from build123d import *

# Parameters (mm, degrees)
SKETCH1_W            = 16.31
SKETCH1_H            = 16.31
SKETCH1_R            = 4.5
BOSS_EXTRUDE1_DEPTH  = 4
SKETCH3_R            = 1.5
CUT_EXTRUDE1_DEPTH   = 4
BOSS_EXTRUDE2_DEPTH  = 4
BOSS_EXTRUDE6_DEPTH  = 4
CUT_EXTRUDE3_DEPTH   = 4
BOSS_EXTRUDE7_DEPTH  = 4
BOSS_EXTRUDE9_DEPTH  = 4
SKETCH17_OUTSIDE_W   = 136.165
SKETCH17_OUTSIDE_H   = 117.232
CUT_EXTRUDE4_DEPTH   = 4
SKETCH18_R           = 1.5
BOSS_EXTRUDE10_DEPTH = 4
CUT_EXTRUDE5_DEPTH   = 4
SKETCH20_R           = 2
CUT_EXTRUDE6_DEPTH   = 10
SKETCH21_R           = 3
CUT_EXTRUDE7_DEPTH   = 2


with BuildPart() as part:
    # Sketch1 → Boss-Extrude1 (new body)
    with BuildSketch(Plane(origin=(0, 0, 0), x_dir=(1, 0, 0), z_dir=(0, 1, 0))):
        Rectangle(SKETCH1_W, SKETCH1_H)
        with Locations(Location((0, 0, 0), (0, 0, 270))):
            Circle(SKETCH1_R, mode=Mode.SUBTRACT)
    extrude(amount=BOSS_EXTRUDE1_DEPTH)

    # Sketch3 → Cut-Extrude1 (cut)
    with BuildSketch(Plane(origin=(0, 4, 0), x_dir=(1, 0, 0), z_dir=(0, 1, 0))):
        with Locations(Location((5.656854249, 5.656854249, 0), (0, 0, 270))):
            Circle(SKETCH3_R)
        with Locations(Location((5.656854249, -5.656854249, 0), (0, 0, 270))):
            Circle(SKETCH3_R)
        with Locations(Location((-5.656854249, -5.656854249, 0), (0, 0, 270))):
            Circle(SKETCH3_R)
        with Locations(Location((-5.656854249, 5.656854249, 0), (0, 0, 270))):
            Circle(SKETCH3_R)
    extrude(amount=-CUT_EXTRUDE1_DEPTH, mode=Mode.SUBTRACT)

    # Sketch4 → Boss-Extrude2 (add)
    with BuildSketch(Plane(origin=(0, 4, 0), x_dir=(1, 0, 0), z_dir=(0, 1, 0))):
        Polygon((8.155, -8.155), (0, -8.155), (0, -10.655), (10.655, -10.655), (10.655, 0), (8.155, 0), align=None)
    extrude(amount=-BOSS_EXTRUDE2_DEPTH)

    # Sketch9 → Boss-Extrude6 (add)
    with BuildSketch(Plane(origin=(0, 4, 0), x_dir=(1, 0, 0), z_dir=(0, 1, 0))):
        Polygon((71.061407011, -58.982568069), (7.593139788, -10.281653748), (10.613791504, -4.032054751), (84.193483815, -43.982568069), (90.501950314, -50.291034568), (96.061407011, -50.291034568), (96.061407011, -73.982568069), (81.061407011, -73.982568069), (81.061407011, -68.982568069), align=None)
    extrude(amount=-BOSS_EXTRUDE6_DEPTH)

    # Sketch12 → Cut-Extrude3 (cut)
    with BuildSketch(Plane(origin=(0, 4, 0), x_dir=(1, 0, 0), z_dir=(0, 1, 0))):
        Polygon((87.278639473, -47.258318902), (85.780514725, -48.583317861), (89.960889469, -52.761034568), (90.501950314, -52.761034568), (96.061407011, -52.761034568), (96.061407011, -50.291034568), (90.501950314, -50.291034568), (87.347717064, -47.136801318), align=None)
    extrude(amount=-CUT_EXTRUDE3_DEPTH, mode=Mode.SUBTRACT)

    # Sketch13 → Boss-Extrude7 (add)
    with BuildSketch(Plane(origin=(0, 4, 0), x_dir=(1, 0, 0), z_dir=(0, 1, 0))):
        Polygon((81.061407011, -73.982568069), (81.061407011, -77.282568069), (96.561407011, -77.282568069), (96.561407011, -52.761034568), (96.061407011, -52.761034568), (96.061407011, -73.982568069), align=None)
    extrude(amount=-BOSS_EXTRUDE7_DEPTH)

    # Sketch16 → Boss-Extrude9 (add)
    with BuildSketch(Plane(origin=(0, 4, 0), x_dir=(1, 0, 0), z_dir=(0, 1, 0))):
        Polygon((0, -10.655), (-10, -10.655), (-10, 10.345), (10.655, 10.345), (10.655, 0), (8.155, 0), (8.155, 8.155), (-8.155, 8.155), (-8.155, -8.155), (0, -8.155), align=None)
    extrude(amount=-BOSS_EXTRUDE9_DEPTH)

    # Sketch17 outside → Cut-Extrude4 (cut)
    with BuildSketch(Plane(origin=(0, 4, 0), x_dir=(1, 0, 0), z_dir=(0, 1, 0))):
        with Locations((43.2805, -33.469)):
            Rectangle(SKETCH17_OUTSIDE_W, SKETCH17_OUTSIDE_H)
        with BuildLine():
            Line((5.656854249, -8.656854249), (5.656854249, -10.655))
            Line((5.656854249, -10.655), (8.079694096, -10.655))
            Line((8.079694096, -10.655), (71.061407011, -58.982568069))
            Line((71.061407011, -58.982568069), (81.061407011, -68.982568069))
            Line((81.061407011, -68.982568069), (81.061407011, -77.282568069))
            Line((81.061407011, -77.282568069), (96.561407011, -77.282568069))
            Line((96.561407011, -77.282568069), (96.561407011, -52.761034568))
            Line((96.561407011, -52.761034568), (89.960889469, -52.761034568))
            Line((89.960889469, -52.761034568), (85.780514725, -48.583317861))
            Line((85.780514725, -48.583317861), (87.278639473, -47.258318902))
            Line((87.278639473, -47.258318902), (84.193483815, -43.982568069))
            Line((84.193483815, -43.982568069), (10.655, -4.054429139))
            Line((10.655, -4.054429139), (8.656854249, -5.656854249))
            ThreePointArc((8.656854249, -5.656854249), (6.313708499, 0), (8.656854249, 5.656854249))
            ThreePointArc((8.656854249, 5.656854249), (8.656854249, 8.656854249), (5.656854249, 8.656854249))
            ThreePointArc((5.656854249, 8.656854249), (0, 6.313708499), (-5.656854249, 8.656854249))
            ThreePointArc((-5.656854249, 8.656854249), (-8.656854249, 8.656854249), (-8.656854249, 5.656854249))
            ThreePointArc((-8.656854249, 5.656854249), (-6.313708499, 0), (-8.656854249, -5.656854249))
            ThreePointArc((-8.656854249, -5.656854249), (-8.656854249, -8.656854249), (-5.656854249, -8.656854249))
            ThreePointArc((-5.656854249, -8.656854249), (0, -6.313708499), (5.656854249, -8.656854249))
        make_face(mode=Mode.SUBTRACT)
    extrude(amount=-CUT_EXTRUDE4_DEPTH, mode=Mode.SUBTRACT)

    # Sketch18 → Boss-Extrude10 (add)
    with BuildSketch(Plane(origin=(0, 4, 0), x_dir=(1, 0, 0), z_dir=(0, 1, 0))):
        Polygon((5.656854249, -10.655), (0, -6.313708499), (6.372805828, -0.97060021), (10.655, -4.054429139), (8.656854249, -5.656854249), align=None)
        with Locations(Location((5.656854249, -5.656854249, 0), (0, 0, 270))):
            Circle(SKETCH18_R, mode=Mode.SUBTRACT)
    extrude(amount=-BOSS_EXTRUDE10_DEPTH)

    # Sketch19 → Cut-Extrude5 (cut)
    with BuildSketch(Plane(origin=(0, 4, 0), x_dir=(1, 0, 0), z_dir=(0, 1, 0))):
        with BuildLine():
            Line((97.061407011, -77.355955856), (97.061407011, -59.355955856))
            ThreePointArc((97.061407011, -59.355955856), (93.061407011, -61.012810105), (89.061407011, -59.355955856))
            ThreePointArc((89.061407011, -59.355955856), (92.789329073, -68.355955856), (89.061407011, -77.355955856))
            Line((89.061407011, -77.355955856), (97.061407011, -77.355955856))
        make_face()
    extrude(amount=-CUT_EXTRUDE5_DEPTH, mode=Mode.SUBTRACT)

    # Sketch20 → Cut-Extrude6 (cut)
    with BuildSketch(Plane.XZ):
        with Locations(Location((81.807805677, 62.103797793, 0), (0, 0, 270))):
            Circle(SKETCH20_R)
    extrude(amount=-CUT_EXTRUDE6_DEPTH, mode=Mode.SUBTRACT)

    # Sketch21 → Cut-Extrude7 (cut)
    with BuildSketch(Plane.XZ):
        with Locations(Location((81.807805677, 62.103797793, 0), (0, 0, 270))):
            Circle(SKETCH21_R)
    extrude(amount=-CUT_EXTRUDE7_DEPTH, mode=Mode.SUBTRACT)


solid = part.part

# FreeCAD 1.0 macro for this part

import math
import FreeCAD as App
import Part
import Sketcher

V = App.Vector
Q = App.Units.Quantity

doc = App.newDocument("Part")
body = doc.addObject("PartDesign::Body", "Body")

# Sketch on XZ plane
sketch1 = doc.addObject("Sketcher::SketchObject", "Sketch")
body.addObject(sketch1)
sketch1.AttachmentSupport = (doc.XZ_Plane, [""])
sketch1.MapMode = "FlatFace"
sketch1.addGeometry([
    Part.LineSegment(V(-8.2, -8.2, 0), V(-8.2, 8.2, 0)),  # 0
    Part.LineSegment(V(-8.2, 8.2, 0), V(8.2, 8.2, 0)),  # 1
    Part.LineSegment(V(8.2, 8.2, 0), V(8.2, -8.2, 0)),  # 2
    Part.LineSegment(V(8.2, -8.2, 0), V(-8.2, -8.2, 0)),  # 3
    Part.Circle(V(0, 0, 0), V(0, 0, 1), 4.5),  # 4
], False)
sketch1.addConstraint([
    Sketcher.Constraint("Coincident", 0, 2, 1, 1),
    Sketcher.Constraint("Coincident", 1, 2, 2, 1),
    Sketcher.Constraint("Coincident", 2, 2, 3, 1),
    Sketcher.Constraint("Coincident", 3, 2, 0, 1),
    Sketcher.Constraint("Vertical", 0),
    Sketcher.Constraint("Horizontal", 1),
    Sketcher.Constraint("Vertical", 2),
    Sketcher.Constraint("Horizontal", 3),
    Sketcher.Constraint("Coincident", 4, 3, -1, 1),
    Sketcher.Constraint("Symmetric", 0, 2, 2, 2, -1, 1),
    Sketcher.Constraint("Equal", 3, 0),
    Sketcher.Constraint("Diameter", 4, Q("9 mm")),
    Sketcher.Constraint("DistanceX", 1, 1, 1, 2, Q("16.31 mm")),
])
pad1 = doc.addObject("PartDesign::Pad", "Pad")
body.addObject(pad1)
pad1.Profile = sketch1
pad1.Length = 4
pad1.Reversed = True

# Sketch on XZ plane
sketch2 = doc.addObject("Sketcher::SketchObject", "Sketch001")
body.addObject(sketch2)
sketch2.AttachmentSupport = (doc.XZ_Plane, [""])
sketch2.MapMode = "FlatFace"
sketch2.AttachmentOffset = App.Placement(V(0, 0, -4), App.Rotation())
sketch2.addGeometry([
    Part.Circle(V(5.7, -5.7, 0), V(0, 0, 1), 1.5),
    Part.Circle(V(5.7, 5.7, 0), V(0, 0, 1), 1.5),
    Part.Circle(V(-5.7, 5.7, 0), V(0, 0, 1), 1.5),
    Part.Circle(V(-5.7, -5.7, 0), V(0, 0, 1), 1.5),
], False)
sketch2.addConstraint([
    Sketcher.Constraint("Equal", 0, 1),
    Sketcher.Constraint("Equal", 1, 2),
    Sketcher.Constraint("Equal", 2, 3),
    Sketcher.Constraint("Symmetric", 0, 3, 2, 3, -1, 1),
    Sketcher.Constraint("Symmetric", 1, 3, 3, 3, -1, 1),
    Sketcher.Constraint("Symmetric", 1, 3, 2, 3, -2),
    Sketcher.Constraint("Diameter", 0, Q("3 mm")),
    Sketcher.Constraint("DistanceY", 0, 3, 1, 3, Q("11.313708 mm")),
    Sketcher.Constraint("DistanceX", 2, 3, 1, 3, Q("11.313708 mm")),
])
pocket1 = doc.addObject("PartDesign::Pocket", "Pocket")
body.addObject(pocket1)
pocket1.Profile = sketch2
pocket1.Length = 4
pocket1.Reversed = True

# Sketch on XZ plane
sketch3 = doc.addObject("Sketcher::SketchObject", "Sketch002")
body.addObject(sketch3)
sketch3.AttachmentSupport = (doc.XZ_Plane, [""])
sketch3.MapMode = "FlatFace"
sketch3.AttachmentOffset = App.Placement(V(0, 0, -4), App.Rotation())
sketch3.addGeometry([
    Part.LineSegment(V(8.2, 8.2, 0), V(0, 8.2, 0)),  # 0
    Part.LineSegment(V(0, 8.2, 0), V(0, 10.7, 0)),  # 1
    Part.LineSegment(V(0, 10.7, 0), V(10.7, 10.7, 0)),  # 2
    Part.LineSegment(V(10.7, 10.7, 0), V(10.7, 0, 0)),  # 3
    Part.LineSegment(V(10.7, 0, 0), V(8.2, 0, 0)),  # 4
    Part.LineSegment(V(8.2, 0, 0), V(8.2, 8.2, 0)),  # 5
], False)
sketch3.addConstraint([
    Sketcher.Constraint("Coincident", 0, 2, 1, 1),
    Sketcher.Constraint("Coincident", 1, 2, 2, 1),
    Sketcher.Constraint("Coincident", 2, 2, 3, 1),
    Sketcher.Constraint("Coincident", 3, 2, 4, 1),
    Sketcher.Constraint("Coincident", 4, 2, 5, 1),
    Sketcher.Constraint("Coincident", 5, 2, 0, 1),
    Sketcher.Constraint("Horizontal", 0),
    Sketcher.Constraint("Vertical", 1),
    Sketcher.Constraint("Horizontal", 2),
    Sketcher.Constraint("Vertical", 3),
    Sketcher.Constraint("Horizontal", 4),
    Sketcher.Constraint("Vertical", 5),
    Sketcher.Constraint("PointOnObject", 0, 2, -2),
    Sketcher.Constraint("PointOnObject", 3, 2, -1),
    Sketcher.Constraint("Equal", 4, 1),
    Sketcher.Constraint("Equal", 2, 3),
    Sketcher.Constraint("DistanceX", 4, 2, 4, 1, Q("2.5 mm")),
    Sketcher.Constraint("DistanceX", 0, 2, 0, 1, Q("8.155 mm")),
])
pad2 = doc.addObject("PartDesign::Pad", "Pad001")
body.addObject(pad2)
pad2.Profile = sketch3
pad2.Length = 4

# Sketch on XZ plane
sketch4 = doc.addObject("Sketcher::SketchObject", "Sketch003")
body.addObject(sketch4)
sketch4.AttachmentSupport = (doc.XZ_Plane, [""])
sketch4.MapMode = "FlatFace"
sketch4.AttachmentOffset = App.Placement(V(0, 0, -4), App.Rotation())
sketch4.addGeometry([
    Part.LineSegment(V(8, 10, 0), V(71, 59, 0)),  # 0
    Part.LineSegment(V(71, 59, 0), V(81, 69, 0)),  # 1
    Part.LineSegment(V(81, 69, 0), V(81, 74, 0)),  # 2
    Part.LineSegment(V(81, 74, 0), V(96, 74, 0)),  # 3
    Part.LineSegment(V(96, 74, 0), V(96, 50, 0)),  # 4
    Part.LineSegment(V(96, 50, 0), V(91, 50, 0)),  # 5
    Part.LineSegment(V(91, 50, 0), V(84, 44, 0)),  # 6
    Part.LineSegment(V(84, 44, 0), V(11, 4, 0)),  # 7
    Part.LineSegment(V(11, 4, 0), V(8, 10, 0)),  # 8
], False)
sketch4.addConstraint([
    Sketcher.Constraint("Coincident", 0, 2, 1, 1),
    Sketcher.Constraint("Coincident", 1, 2, 2, 1),
    Sketcher.Constraint("Coincident", 2, 2, 3, 1),
    Sketcher.Constraint("Coincident", 3, 2, 4, 1),
    Sketcher.Constraint("Coincident", 4, 2, 5, 1),
    Sketcher.Constraint("Coincident", 5, 2, 6, 1),
    Sketcher.Constraint("Coincident", 6, 2, 7, 1),
    Sketcher.Constraint("Coincident", 7, 2, 8, 1),
    Sketcher.Constraint("Coincident", 8, 2, 0, 1),
    Sketcher.Constraint("Vertical", 2),
    Sketcher.Constraint("Horizontal", 3),
    Sketcher.Constraint("Vertical", 4),
    Sketcher.Constraint("Horizontal", 5),
    Sketcher.Constraint("Parallel", 1, 6),
    Sketcher.Constraint("DistanceX", 3, 1, 3, 2, Q("15 mm")),
    Sketcher.Constraint("DistanceY", 2, 1, 2, 2, Q("5 mm")),
    Sketcher.Constraint("Angle", 1, Q("45 deg")),
    Sketcher.Constraint("Distance", 0, Q("80 mm")),
    Sketcher.Constraint("Angle", 0, Q("37.5 deg")),
    Sketcher.Constraint("Angle", 7, Q("-151.5 deg")),
    Sketcher.Constraint("DistanceX", 0, 2, 1, 2, Q("10 mm")),
    Sketcher.Constraint("DistanceY", 6, 2, 0, 2, Q("15 mm")),
    Sketcher.Constraint("DistanceY", 7, 2, 8, 2, Q("6.249599 mm")),
    Sketcher.Constraint("Distance", 6, Q("8.921519 mm")),
    Sketcher.Constraint("DistanceX", 5, 2, 5, 1, Q("5.559457 mm")),
    Sketcher.Constraint("DistanceY", -1, 1, 0, 2, Q("58.982568 mm")),
    Sketcher.Constraint("DistanceX", -1, 1, 5, 2, Q("90.50195 mm")),
])
pad3 = doc.addObject("PartDesign::Pad", "Pad002")
body.addObject(pad3)
pad3.Profile = sketch4
pad3.Length = 4

# Sketch on XZ plane
sketch5 = doc.addObject("Sketcher::SketchObject", "Sketch004")
body.addObject(sketch5)
sketch5.AttachmentSupport = (doc.XZ_Plane, [""])
sketch5.MapMode = "FlatFace"
sketch5.AttachmentOffset = App.Placement(V(0, 0, -4), App.Rotation())
sketch5.addGeometry([
    Part.LineSegment(V(87.28, 47.26, 0), V(85.78, 48.58, 0)),  # 0
    Part.LineSegment(V(85.78, 48.58, 0), V(89.96, 52.76, 0)),  # 1
    Part.LineSegment(V(89.96, 52.76, 0), V(96.06, 52.76, 0)),  # 2
    Part.LineSegment(V(96.06, 52.76, 0), V(96.06, 50.29, 0)),  # 3
    Part.LineSegment(V(96.06, 50.29, 0), V(90.5, 50.29, 0)),  # 4
    Part.LineSegment(V(90.5, 50.29, 0), V(87.35, 47.14, 0)),  # 5
    Part.LineSegment(V(87.35, 47.14, 0), V(87.28, 47.26, 0)),  # 6
], False)
sketch5.addConstraint([
    Sketcher.Constraint("Coincident", 0, 2, 1, 1),
    Sketcher.Constraint("Coincident", 1, 2, 2, 1),
    Sketcher.Constraint("Coincident", 2, 2, 3, 1),
    Sketcher.Constraint("Coincident", 3, 2, 4, 1),
    Sketcher.Constraint("Coincident", 4, 2, 5, 1),
    Sketcher.Constraint("Coincident", 5, 2, 6, 1),
    Sketcher.Constraint("Coincident", 6, 2, 0, 1),
    Sketcher.Constraint("Horizontal", 2),
    Sketcher.Constraint("Vertical", 3),
    Sketcher.Constraint("Horizontal", 4),
    Sketcher.Constraint("Angle", 5, Q("-135 deg")),
    Sketcher.Constraint("Distance", 0, Q("2 mm")),
    Sketcher.Constraint("DistanceY", 3, 2, 3, 1, Q("2.47 mm")),
    Sketcher.Constraint("DistanceY", 6, 2, 0, 2, Q("1.324999 mm")),
    Sketcher.Constraint("DistanceY", -1, 1, 5, 2, Q("47.136801 mm")),
    Sketcher.Constraint("Distance", 5, Q("4.460759 mm")),
    Sketcher.Constraint("Distance", 6, Q("0.139779 mm")),
    Sketcher.Constraint("DistanceX", 2, 1, 2, 2, Q("6.100518 mm")),
    Sketcher.Constraint("DistanceX", 4, 2, 4, 1, Q("5.559457 mm")),
    Sketcher.Constraint("DistanceX", -1, 1, 1, 2, Q("89.960889 mm")),
    Sketcher.Constraint("DistanceX", -1, 1, 6, 2, Q("87.278639 mm")),
])
pocket2 = doc.addObject("PartDesign::Pocket", "Pocket001")
body.addObject(pocket2)
pocket2.Profile = sketch5
pocket2.Length = 4
pocket2.Reversed = True

# Sketch on XZ plane
sketch6 = doc.addObject("Sketcher::SketchObject", "Sketch005")
body.addObject(sketch6)
sketch6.AttachmentSupport = (doc.XZ_Plane, [""])
sketch6.MapMode = "FlatFace"
sketch6.AttachmentOffset = App.Placement(V(0, 0, -4), App.Rotation())
sketch6.addGeometry([
    Part.LineSegment(V(81.1, 74, 0), V(81.1, 77.3, 0)),  # 0
    Part.LineSegment(V(81.1, 77.3, 0), V(96.6, 77.3, 0)),  # 1
    Part.LineSegment(V(96.6, 77.3, 0), V(96.6, 52.8, 0)),  # 2
    Part.LineSegment(V(96.6, 52.8, 0), V(96.1, 52.8, 0)),  # 3
    Part.LineSegment(V(96.1, 52.8, 0), V(96.1, 74, 0)),  # 4
    Part.LineSegment(V(96.1, 74, 0), V(81.1, 74, 0)),  # 5
], False)
sketch6.addConstraint([
    Sketcher.Constraint("Coincident", 0, 2, 1, 1),
    Sketcher.Constraint("Coincident", 1, 2, 2, 1),
    Sketcher.Constraint("Coincident", 2, 2, 3, 1),
    Sketcher.Constraint("Coincident", 3, 2, 4, 1),
    Sketcher.Constraint("Coincident", 4, 2, 5, 1),
    Sketcher.Constraint("Coincident", 5, 2, 0, 1),
    Sketcher.Constraint("Vertical", 0),
    Sketcher.Constraint("Horizontal", 1),
    Sketcher.Constraint("Vertical", 2),
    Sketcher.Constraint("Horizontal", 3),
    Sketcher.Constraint("Vertical", 4),
    Sketcher.Constraint("Horizontal", 5),
    Sketcher.Constraint("DistanceX", 5, 2, 5, 1, Q("15 mm")),
    Sketcher.Constraint("DistanceX", 1, 1, 1, 2, Q("15.5 mm")),
    Sketcher.Constraint("DistanceY", 0, 1, 0, 2, Q("3.3 mm")),
    Sketcher.Constraint("DistanceY", 2, 2, 2, 1, Q("24.521534 mm")),
    Sketcher.Constraint("DistanceY", -1, 1, 0, 2, Q("77.282568 mm")),
    Sketcher.Constraint("DistanceX", -1, 1, 0, 2, Q("81.061407 mm")),
])
pad4 = doc.addObject("PartDesign::Pad", "Pad003")
body.addObject(pad4)
pad4.Profile = sketch6
pad4.Length = 4

# Sketch on XZ plane
sketch7 = doc.addObject("Sketcher::SketchObject", "Sketch006")
body.addObject(sketch7)
sketch7.AttachmentSupport = (doc.XZ_Plane, [""])
sketch7.MapMode = "FlatFace"
sketch7.AttachmentOffset = App.Placement(V(0, 0, -4), App.Rotation())
sketch7.addGeometry([
    Part.LineSegment(V(-10, 10.7, 0), V(0, 10.7, 0)),  # 0
    Part.LineSegment(V(0, 10.7, 0), V(0, 8.2, 0)),  # 1
    Part.LineSegment(V(0, 8.2, 0), V(-8.2, 8.2, 0)),  # 2
    Part.LineSegment(V(-8.2, 8.2, 0), V(-8.2, -8.2, 0)),  # 3
    Part.LineSegment(V(-8.2, -8.2, 0), V(8.2, -8.2, 0)),  # 4
    Part.LineSegment(V(8.2, -8.2, 0), V(8.2, 0, 0)),  # 5
    Part.LineSegment(V(8.2, 0, 0), V(10.7, 0, 0)),  # 6
    Part.LineSegment(V(10.7, 0, 0), V(10.7, -10.3, 0)),  # 7
    Part.LineSegment(V(10.7, -10.3, 0), V(-10, -10.3, 0)),  # 8
    Part.LineSegment(V(-10, -10.3, 0), V(-10, 10.7, 0)),  # 9
], False)
sketch7.addConstraint([
    Sketcher.Constraint("Coincident", 0, 2, 1, 1),
    Sketcher.Constraint("Coincident", 1, 2, 2, 1),
    Sketcher.Constraint("Coincident", 2, 2, 3, 1),
    Sketcher.Constraint("Coincident", 3, 2, 4, 1),
    Sketcher.Constraint("Coincident", 4, 2, 5, 1),
    Sketcher.Constraint("Coincident", 5, 2, 6, 1),
    Sketcher.Constraint("Coincident", 6, 2, 7, 1),
    Sketcher.Constraint("Coincident", 7, 2, 8, 1),
    Sketcher.Constraint("Coincident", 8, 2, 9, 1),
    Sketcher.Constraint("Coincident", 9, 2, 0, 1),
    Sketcher.Constraint("Horizontal", 0),
    Sketcher.Constraint("Vertical", 1),
    Sketcher.Constraint("Horizontal", 2),
    Sketcher.Constraint("Vertical", 3),
    Sketcher.Constraint("Horizontal", 4),
    Sketcher.Constraint("Vertical", 5),
    Sketcher.Constraint("Horizontal", 6),
    Sketcher.Constraint("Vertical", 7),
    Sketcher.Constraint("Horizontal", 8),
    Sketcher.Constraint("Vertical", 9),
    Sketcher.Constraint("Symmetric", 2, 2, 4, 2, -1, 1),
    Sketcher.Constraint("PointOnObject", 0, 2, -2),
    Sketcher.Constraint("PointOnObject", 5, 2, -1),
    Sketcher.Constraint("Equal", 6, 1),
    Sketcher.Constraint("Equal", 4, 3),
    Sketcher.Constraint("DistanceX", 0, 1, 0, 2, Q("10 mm")),
    Sketcher.Constraint("DistanceY", 9, 1, 9, 2, Q("21 mm")),
    Sketcher.Constraint("DistanceX", 6, 1, 6, 2, Q("2.5 mm")),
    Sketcher.Constraint("DistanceX", 4, 1, 4, 2, Q("16.31 mm")),
])
pad5 = doc.addObject("PartDesign::Pad", "Pad004")
body.addObject(pad5)
pad5.Profile = sketch7
pad5.Length = 4

# Sketch on XZ plane
sketch8 = doc.addObject("Sketcher::SketchObject", "Sketch007")
body.addObject(sketch8)
sketch8.AttachmentSupport = (doc.XZ_Plane, [""])
sketch8.MapMode = "FlatFace"
sketch8.AttachmentOffset = App.Placement(V(0, 0, -4), App.Rotation())
sketch8.addGeometry([
    Part.LineSegment(V(-24.8, -25.1, 0), V(-24.8, 92.1, 0)),  # 0
    Part.LineSegment(V(-24.8, 92.1, 0), V(111.4, 92.1, 0)),  # 1
    Part.LineSegment(V(111.4, 92.1, 0), V(111.4, -25.1, 0)),  # 2
    Part.LineSegment(V(111.4, -25.1, 0), V(-24.8, -25.1, 0)),  # 3
    Part.LineSegment(V(5.7, 10.7, 0), V(5.7, 8.7, 0)),  # 4
    Part.ArcOfCircle(Part.Circle(V(0, 14.3, 0), V(0, 0, 1), 8), math.radians(-135), math.radians(-45)),  # 5
    Part.ArcOfCircle(Part.Circle(V(-7.2, 7.2, 0), V(0, 0, 1), 2.1), math.radians(45), math.radians(225)),  # 6
    Part.ArcOfCircle(Part.Circle(V(-14.3, 0, 0), V(0, 0, 1), 8), math.radians(-45), math.radians(45)),  # 7
    Part.ArcOfCircle(Part.Circle(V(-7.2, -7.2, 0), V(0, 0, 1), 2.1), math.radians(135), math.radians(315)),  # 8
    Part.ArcOfCircle(Part.Circle(V(0, -14.3, 0), V(0, 0, 1), 8), math.radians(45), math.radians(135)),  # 9
    Part.ArcOfCircle(Part.Circle(V(7.2, -7.2, 0), V(0, 0, 1), 2.1), math.radians(-135), math.radians(45)),  # 10
    Part.ArcOfCircle(Part.Circle(V(14.3, 0, 0), V(0, 0, 1), 8), math.radians(135), math.radians(225)),  # 11
    Part.LineSegment(V(8.7, 5.7, 0), V(10.7, 4.1, 0)),  # 12
    Part.LineSegment(V(10.7, 4.1, 0), V(84.2, 44, 0)),  # 13
    Part.LineSegment(V(84.2, 44, 0), V(87.3, 47.3, 0)),  # 14
    Part.LineSegment(V(87.3, 47.3, 0), V(85.8, 48.6, 0)),  # 15
    Part.LineSegment(V(85.8, 48.6, 0), V(90, 52.8, 0)),  # 16
    Part.LineSegment(V(90, 52.8, 0), V(96.6, 52.8, 0)),  # 17
    Part.LineSegment(V(96.6, 52.8, 0), V(96.6, 77.3, 0)),  # 18
    Part.LineSegment(V(96.6, 77.3, 0), V(81.1, 77.3, 0)),  # 19
    Part.LineSegment(V(81.1, 77.3, 0), V(81.1, 69, 0)),  # 20
    Part.LineSegment(V(81.1, 69, 0), V(71.1, 59, 0)),  # 21
    Part.LineSegment(V(71.1, 59, 0), V(8.1, 10.7, 0)),  # 22
    Part.LineSegment(V(8.1, 10.7, 0), V(5.7, 10.7, 0)),  # 23
], False)
sketch8.addConstraint([
    Sketcher.Constraint("Coincident", 0, 2, 1, 1),
    Sketcher.Constraint("Coincident", 1, 2, 2, 1),
    Sketcher.Constraint("Coincident", 2, 2, 3, 1),
    Sketcher.Constraint("Coincident", 3, 2, 0, 1),
    Sketcher.Constraint("Coincident", 4, 2, 5, 2),
    Sketcher.Constraint("Tangent", 5, 1, 6, 1),
    Sketcher.Constraint("Tangent", 6, 2, 7, 2),
    Sketcher.Constraint("Tangent", 7, 1, 8, 1),
    Sketcher.Constraint("Tangent", 8, 2, 9, 2),
    Sketcher.Constraint("Tangent", 9, 1, 10, 1),
    Sketcher.Constraint("Tangent", 10, 2, 11, 2),
    Sketcher.Constraint("Coincident", 11, 1, 12, 1),
    Sketcher.Constraint("Coincident", 12, 2, 13, 1),
    Sketcher.Constraint("Coincident", 13, 2, 14, 1),
    Sketcher.Constraint("Coincident", 14, 2, 15, 1),
    Sketcher.Constraint("Coincident", 15, 2, 16, 1),
    Sketcher.Constraint("Coincident", 16, 2, 17, 1),
    Sketcher.Constraint("Coincident", 17, 2, 18, 1),
    Sketcher.Constraint("Coincident", 18, 2, 19, 1),
    Sketcher.Constraint("Coincident", 19, 2, 20, 1),
    Sketcher.Constraint("Coincident", 20, 2, 21, 1),
    Sketcher.Constraint("Coincident", 21, 2, 22, 1),
    Sketcher.Constraint("Coincident", 22, 2, 23, 1),
    Sketcher.Constraint("Coincident", 23, 2, 4, 1),
    Sketcher.Constraint("Vertical", 0),
    Sketcher.Constraint("Horizontal", 1),
    Sketcher.Constraint("Vertical", 2),
    Sketcher.Constraint("Horizontal", 3),
    Sketcher.Constraint("Vertical", 4),
    Sketcher.Constraint("Horizontal", 17),
    Sketcher.Constraint("Vertical", 18),
    Sketcher.Constraint("Horizontal", 19),
    Sketcher.Constraint("Vertical", 20),
    Sketcher.Constraint("Horizontal", 23),
    Sketcher.Constraint("Equal", 5, 7),
    Sketcher.Constraint("Equal", 6, 8),
    Sketcher.Constraint("Equal", 7, 9),
    Sketcher.Constraint("Equal", 8, 10),
    Sketcher.Constraint("Equal", 9, 11),
    Sketcher.Constraint("Symmetric", 5, 3, 9, 3, -1, 1),
    Sketcher.Constraint("Symmetric", 7, 1, 11, 1, -1, 1),
    Sketcher.Constraint("Symmetric", 8, 3, 10, 3, -2),
    Sketcher.Constraint("Horizontal", 4, 2, 5, 1),
    Sketcher.Constraint("Horizontal", 6, 2, 11, 1),
    Sketcher.Constraint("Radius", 5, Q("8 mm")),
    Sketcher.Constraint("Angle", 21, Q("-135 deg")),
    Sketcher.Constraint("Distance", 15, Q("2 mm")),
    Sketcher.Constraint("DistanceX", 19, 2, 19, 1, Q("15.5 mm")),
    Sketcher.Constraint("DistanceY", 20, 2, 20, 1, Q("8.3 mm")),
    Sketcher.Constraint("Angle", 13, Q("28.5 deg")),
    Sketcher.Constraint("Angle", 22, Q("-142.5 deg")),
    Sketcher.Constraint("DistanceX", 6, 2, 5, 1, Q("3 mm")),
    Sketcher.Constraint("DistanceY", 6, 2, 5, 1, Q("3 mm")),
    Sketcher.Constraint("DistanceX", 21, 2, 20, 2, Q("10 mm")),
    Sketcher.Constraint("DistanceY", 13, 2, 21, 2, Q("15 mm")),
    Sketcher.Constraint("DistanceY", 6, 3, 4, 2, Q("1.5 mm")),
    Sketcher.Constraint("DistanceX", 1, 1, 1, 2, Q("136.165 mm")),
    Sketcher.Constraint("DistanceY", 0, 1, 0, 2, Q("117.232 mm")),
    Sketcher.Constraint("DistanceX", 0, 2, -1, 1, Q("24.802 mm")),
    Sketcher.Constraint("DistanceY", -1, 1, 0, 2, Q("92.085 mm")),
    Sketcher.Constraint("DistanceX", -1, 1, 12, 2, Q("10.655 mm")),
    Sketcher.Constraint("DistanceY", -1, 1, 22, 2, Q("10.655 mm")),
    Sketcher.Constraint("DistanceY", 14, 2, 15, 2, Q("1.324999 mm")),
    Sketcher.Constraint("DistanceX", 23, 2, 23, 1, Q("2.42284 mm")),
    Sketcher.Constraint("Distance", 12, Q("2.561319 mm")),
    Sketcher.Constraint("Distance", 13, Q("83.678939 mm")),
    Sketcher.Constraint("Distance", 14, Q("4.499859 mm")),
    Sketcher.Constraint("DistanceX", 17, 1, 17, 2, Q("6.600518 mm")),
    Sketcher.Constraint("DistanceY", 18, 1, 18, 2, Q("24.521534 mm")),
    Sketcher.Constraint("DistanceX", -1, 1, 14, 2, Q("87.278639 mm")),
])
pocket3 = doc.addObject("PartDesign::Pocket", "Pocket002")
body.addObject(pocket3)
pocket3.Profile = sketch8
pocket3.Length = 4
pocket3.Reversed = True

# Sketch on XZ plane
sketch9 = doc.addObject("Sketcher::SketchObject", "Sketch008")
body.addObject(sketch9)
sketch9.AttachmentSupport = (doc.XZ_Plane, [""])
sketch9.MapMode = "FlatFace"
sketch9.AttachmentOffset = App.Placement(V(0, 0, -4), App.Rotation())
sketch9.addGeometry([
    Part.LineSegment(V(0, 6.3, 0), V(5.7, 10.7, 0)),  # 0
    Part.LineSegment(V(5.7, 10.7, 0), V(8.7, 5.7, 0)),  # 1
    Part.LineSegment(V(8.7, 5.7, 0), V(10.7, 4.1, 0)),  # 2
    Part.LineSegment(V(10.7, 4.1, 0), V(6.4, 1, 0)),  # 3
    Part.LineSegment(V(6.4, 1, 0), V(0, 6.3, 0)),  # 4
    Part.Circle(V(5.7, 5.7, 0), V(0, 0, 1), 1.5),  # 5
], False)
sketch9.addConstraint([
    Sketcher.Constraint("Coincident", 0, 2, 1, 1),
    Sketcher.Constraint("Coincident", 1, 2, 2, 1),
    Sketcher.Constraint("Coincident", 2, 2, 3, 1),
    Sketcher.Constraint("Coincident", 3, 2, 4, 1),
    Sketcher.Constraint("Coincident", 4, 2, 0, 1),
    Sketcher.Constraint("PointOnObject", 4, 2, -2),
    Sketcher.Constraint("Horizontal", 5, 3, 1, 2),
    Sketcher.Constraint("Vertical", 5, 3, 0, 2),
    Sketcher.Constraint("Diameter", 5, Q("3 mm")),
    Sketcher.Constraint("DistanceX", 5, 3, 1, 2, Q("3 mm")),
    Sketcher.Constraint("DistanceY", -1, 1, 0, 2, Q("10.655 mm")),
    Sketcher.Constraint("DistanceX", -1, 1, 2, 2, Q("10.655 mm")),
    Sketcher.Constraint("DistanceY", -1, 1, 3, 2, Q("0.9706 mm")),
    Sketcher.Constraint("Distance", 1, Q("5.829362 mm")),
    Sketcher.Constraint("Distance", 2, Q("2.561319 mm")),
    Sketcher.Constraint("DistanceY", -1, 1, 2, 2, Q("4.054429 mm")),
    Sketcher.Constraint("DistanceY", -1, 1, 4, 2, Q("6.313708 mm")),
    Sketcher.Constraint("DistanceX", 5, 3, 3, 2, Q("0.715952 mm")),
])
pad6 = doc.addObject("PartDesign::Pad", "Pad005")
body.addObject(pad6)
pad6.Profile = sketch9
pad6.Length = 4

# Sketch on XZ plane
sketch10 = doc.addObject("Sketcher::SketchObject", "Sketch009")
body.addObject(sketch10)
sketch10.AttachmentSupport = (doc.XZ_Plane, [""])
sketch10.MapMode = "FlatFace"
sketch10.AttachmentOffset = App.Placement(V(0, 0, -4), App.Rotation())
sketch10.addGeometry([
    Part.LineSegment(V(97, 77, 0), V(97, 59, 0)),
    Part.ArcOfCircle(Part.Circle(V(93, 55, 0), V(0, 0, 1), 6), math.radians(45), math.radians(135)),
    Part.ArcOfCircle(Part.Circle(V(80, 68, 0), V(0, 0, 1), 13), math.radians(-45), math.radians(45)),
    Part.LineSegment(V(89, 77, 0), V(97, 77, 0)),
], False)
sketch10.addConstraint([
    Sketcher.Constraint("Coincident", 0, 2, 1, 1),
    Sketcher.Constraint("Tangent", 1, 2, 2, 1),
    Sketcher.Constraint("Coincident", 2, 2, 3, 1),
    Sketcher.Constraint("Coincident", 3, 2, 0, 1),
    Sketcher.Constraint("Vertical", 0),
    Sketcher.Constraint("Horizontal", 3),
    Sketcher.Constraint("Horizontal", 0, 2, 1, 2),
    Sketcher.Constraint("Vertical", 1, 2, 2, 2),
    Sketcher.Constraint("DistanceX", 3, 1, 3, 2, Q("8 mm")),
    Sketcher.Constraint("DistanceY", 0, 2, 0, 1, Q("18 mm")),
    Sketcher.Constraint("DistanceX", 2, 3, 1, 3, Q("13 mm")),
    Sketcher.Constraint("DistanceX", -1, 1, 1, 3, Q("93.061407 mm")),
    Sketcher.Constraint("DistanceY", -1, 1, 1, 3, Q("55.355956 mm")),
])
pocket4 = doc.addObject("PartDesign::Pocket", "Pocket003")
body.addObject(pocket4)
pocket4.Profile = sketch10
pocket4.Length = 4
pocket4.Reversed = True

# Sketch on XZ plane
sketch11 = doc.addObject("Sketcher::SketchObject", "Sketch010")
body.addObject(sketch11)
sketch11.AttachmentSupport = (doc.XZ_Plane, [""])
sketch11.MapMode = "FlatFace"
sketch11.addGeometry(Part.Circle(V(81.8, 62.1, 0), V(0, 0, 1), 2), False)
sketch11.addConstraint([
    Sketcher.Constraint("Diameter", 0, Q("4 mm")),
    Sketcher.Constraint("DistanceX", -1, 1, 0, 3, Q("81.807806 mm")),
    Sketcher.Constraint("DistanceY", -1, 1, 0, 3, Q("62.103798 mm")),
])
pocket5 = doc.addObject("PartDesign::Pocket", "Pocket004")
body.addObject(pocket5)
pocket5.Profile = sketch11
pocket5.Length = 10

# Sketch on XZ plane
sketch12 = doc.addObject("Sketcher::SketchObject", "Sketch011")
body.addObject(sketch12)
sketch12.AttachmentSupport = (doc.XZ_Plane, [""])
sketch12.MapMode = "FlatFace"
sketch12.addGeometry(Part.Circle(V(81.8, 62.1, 0), V(0, 0, 1), 3), False)
sketch12.addConstraint([
    Sketcher.Constraint("Diameter", 0, Q("6 mm")),
    Sketcher.Constraint("DistanceX", -1, 1, 0, 3, Q("81.807806 mm")),
    Sketcher.Constraint("DistanceY", -1, 1, 0, 3, Q("62.103798 mm")),
])
pocket6 = doc.addObject("PartDesign::Pocket", "Pocket005")
body.addObject(pocket6)
pocket6.Profile = sketch12
pocket6.Length = 2

doc.recompute()
